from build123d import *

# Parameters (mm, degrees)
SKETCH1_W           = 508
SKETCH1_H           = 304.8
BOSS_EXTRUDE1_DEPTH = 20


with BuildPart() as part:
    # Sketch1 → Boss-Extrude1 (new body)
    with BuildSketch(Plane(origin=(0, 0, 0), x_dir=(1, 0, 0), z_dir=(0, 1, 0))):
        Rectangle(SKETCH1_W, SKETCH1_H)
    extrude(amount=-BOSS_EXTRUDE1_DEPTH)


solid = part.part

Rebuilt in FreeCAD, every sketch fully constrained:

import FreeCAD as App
import Part
import Sketcher

V = App.Vector
Q = App.Units.Quantity

doc = App.newDocument("Part")
body = doc.addObject("PartDesign::Body", "Body")

sketch1 = doc.addObject("Sketcher::SketchObject", "Sketch")
body.addObject(sketch1)
sketch1.AttachmentSupport = (doc.XZ_Plane, [""])
sketch1.MapMode = "FlatFace"
sketch1.addGeometry(Part.LineSegment(V(-254, -152, 0), V(-254, 152, 0)), False)
sketch1.addGeometry(Part.LineSegment(V(-254, 152, 0), V(254, 152, 0)), False)
sketch1.addGeometry(Part.LineSegment(V(254, 152, 0), V(254, -152, 0)), False)
sketch1.addGeometry(Part.LineSegment(V(254, -152, 0), V(-254, -152, 0)), False)
sketch1.addConstraint(Sketcher.Constraint("Coincident", 0, 2, 1, 1))
sketch1.addConstraint(Sketcher.Constraint("Coincident", 1, 2, 2, 1))
sketch1.addConstraint(Sketcher.Constraint("Coincident", 2, 2, 3, 1))
sketch1.addConstraint(Sketcher.Constraint("Coincident", 3, 2, 0, 1))
sketch1.addConstraint(Sketcher.Constraint("Vertical", 0))
sketch1.addConstraint(Sketcher.Constraint("Horizontal", 1))
sketch1.addConstraint(Sketcher.Constraint("Vertical", 2))
sketch1.addConstraint(Sketcher.Constraint("Horizontal", 3))
sketch1.addConstraint(Sketcher.Constraint("Symmetric", 0, 2, 2, 2, -1, 1))
sketch1.addConstraint(Sketcher.Constraint("DistanceX", 1, 1, 1, 2, Q("20 in")))
sketch1.addConstraint(Sketcher.Constraint("DistanceY", 0, 1, 0, 2, Q("12 in")))
pad1 = doc.addObject("PartDesign::Pad", "Pad")
body.addObject(pad1)
pad1.Profile = sketch1
pad1.Length = 20

doc.recompute()
